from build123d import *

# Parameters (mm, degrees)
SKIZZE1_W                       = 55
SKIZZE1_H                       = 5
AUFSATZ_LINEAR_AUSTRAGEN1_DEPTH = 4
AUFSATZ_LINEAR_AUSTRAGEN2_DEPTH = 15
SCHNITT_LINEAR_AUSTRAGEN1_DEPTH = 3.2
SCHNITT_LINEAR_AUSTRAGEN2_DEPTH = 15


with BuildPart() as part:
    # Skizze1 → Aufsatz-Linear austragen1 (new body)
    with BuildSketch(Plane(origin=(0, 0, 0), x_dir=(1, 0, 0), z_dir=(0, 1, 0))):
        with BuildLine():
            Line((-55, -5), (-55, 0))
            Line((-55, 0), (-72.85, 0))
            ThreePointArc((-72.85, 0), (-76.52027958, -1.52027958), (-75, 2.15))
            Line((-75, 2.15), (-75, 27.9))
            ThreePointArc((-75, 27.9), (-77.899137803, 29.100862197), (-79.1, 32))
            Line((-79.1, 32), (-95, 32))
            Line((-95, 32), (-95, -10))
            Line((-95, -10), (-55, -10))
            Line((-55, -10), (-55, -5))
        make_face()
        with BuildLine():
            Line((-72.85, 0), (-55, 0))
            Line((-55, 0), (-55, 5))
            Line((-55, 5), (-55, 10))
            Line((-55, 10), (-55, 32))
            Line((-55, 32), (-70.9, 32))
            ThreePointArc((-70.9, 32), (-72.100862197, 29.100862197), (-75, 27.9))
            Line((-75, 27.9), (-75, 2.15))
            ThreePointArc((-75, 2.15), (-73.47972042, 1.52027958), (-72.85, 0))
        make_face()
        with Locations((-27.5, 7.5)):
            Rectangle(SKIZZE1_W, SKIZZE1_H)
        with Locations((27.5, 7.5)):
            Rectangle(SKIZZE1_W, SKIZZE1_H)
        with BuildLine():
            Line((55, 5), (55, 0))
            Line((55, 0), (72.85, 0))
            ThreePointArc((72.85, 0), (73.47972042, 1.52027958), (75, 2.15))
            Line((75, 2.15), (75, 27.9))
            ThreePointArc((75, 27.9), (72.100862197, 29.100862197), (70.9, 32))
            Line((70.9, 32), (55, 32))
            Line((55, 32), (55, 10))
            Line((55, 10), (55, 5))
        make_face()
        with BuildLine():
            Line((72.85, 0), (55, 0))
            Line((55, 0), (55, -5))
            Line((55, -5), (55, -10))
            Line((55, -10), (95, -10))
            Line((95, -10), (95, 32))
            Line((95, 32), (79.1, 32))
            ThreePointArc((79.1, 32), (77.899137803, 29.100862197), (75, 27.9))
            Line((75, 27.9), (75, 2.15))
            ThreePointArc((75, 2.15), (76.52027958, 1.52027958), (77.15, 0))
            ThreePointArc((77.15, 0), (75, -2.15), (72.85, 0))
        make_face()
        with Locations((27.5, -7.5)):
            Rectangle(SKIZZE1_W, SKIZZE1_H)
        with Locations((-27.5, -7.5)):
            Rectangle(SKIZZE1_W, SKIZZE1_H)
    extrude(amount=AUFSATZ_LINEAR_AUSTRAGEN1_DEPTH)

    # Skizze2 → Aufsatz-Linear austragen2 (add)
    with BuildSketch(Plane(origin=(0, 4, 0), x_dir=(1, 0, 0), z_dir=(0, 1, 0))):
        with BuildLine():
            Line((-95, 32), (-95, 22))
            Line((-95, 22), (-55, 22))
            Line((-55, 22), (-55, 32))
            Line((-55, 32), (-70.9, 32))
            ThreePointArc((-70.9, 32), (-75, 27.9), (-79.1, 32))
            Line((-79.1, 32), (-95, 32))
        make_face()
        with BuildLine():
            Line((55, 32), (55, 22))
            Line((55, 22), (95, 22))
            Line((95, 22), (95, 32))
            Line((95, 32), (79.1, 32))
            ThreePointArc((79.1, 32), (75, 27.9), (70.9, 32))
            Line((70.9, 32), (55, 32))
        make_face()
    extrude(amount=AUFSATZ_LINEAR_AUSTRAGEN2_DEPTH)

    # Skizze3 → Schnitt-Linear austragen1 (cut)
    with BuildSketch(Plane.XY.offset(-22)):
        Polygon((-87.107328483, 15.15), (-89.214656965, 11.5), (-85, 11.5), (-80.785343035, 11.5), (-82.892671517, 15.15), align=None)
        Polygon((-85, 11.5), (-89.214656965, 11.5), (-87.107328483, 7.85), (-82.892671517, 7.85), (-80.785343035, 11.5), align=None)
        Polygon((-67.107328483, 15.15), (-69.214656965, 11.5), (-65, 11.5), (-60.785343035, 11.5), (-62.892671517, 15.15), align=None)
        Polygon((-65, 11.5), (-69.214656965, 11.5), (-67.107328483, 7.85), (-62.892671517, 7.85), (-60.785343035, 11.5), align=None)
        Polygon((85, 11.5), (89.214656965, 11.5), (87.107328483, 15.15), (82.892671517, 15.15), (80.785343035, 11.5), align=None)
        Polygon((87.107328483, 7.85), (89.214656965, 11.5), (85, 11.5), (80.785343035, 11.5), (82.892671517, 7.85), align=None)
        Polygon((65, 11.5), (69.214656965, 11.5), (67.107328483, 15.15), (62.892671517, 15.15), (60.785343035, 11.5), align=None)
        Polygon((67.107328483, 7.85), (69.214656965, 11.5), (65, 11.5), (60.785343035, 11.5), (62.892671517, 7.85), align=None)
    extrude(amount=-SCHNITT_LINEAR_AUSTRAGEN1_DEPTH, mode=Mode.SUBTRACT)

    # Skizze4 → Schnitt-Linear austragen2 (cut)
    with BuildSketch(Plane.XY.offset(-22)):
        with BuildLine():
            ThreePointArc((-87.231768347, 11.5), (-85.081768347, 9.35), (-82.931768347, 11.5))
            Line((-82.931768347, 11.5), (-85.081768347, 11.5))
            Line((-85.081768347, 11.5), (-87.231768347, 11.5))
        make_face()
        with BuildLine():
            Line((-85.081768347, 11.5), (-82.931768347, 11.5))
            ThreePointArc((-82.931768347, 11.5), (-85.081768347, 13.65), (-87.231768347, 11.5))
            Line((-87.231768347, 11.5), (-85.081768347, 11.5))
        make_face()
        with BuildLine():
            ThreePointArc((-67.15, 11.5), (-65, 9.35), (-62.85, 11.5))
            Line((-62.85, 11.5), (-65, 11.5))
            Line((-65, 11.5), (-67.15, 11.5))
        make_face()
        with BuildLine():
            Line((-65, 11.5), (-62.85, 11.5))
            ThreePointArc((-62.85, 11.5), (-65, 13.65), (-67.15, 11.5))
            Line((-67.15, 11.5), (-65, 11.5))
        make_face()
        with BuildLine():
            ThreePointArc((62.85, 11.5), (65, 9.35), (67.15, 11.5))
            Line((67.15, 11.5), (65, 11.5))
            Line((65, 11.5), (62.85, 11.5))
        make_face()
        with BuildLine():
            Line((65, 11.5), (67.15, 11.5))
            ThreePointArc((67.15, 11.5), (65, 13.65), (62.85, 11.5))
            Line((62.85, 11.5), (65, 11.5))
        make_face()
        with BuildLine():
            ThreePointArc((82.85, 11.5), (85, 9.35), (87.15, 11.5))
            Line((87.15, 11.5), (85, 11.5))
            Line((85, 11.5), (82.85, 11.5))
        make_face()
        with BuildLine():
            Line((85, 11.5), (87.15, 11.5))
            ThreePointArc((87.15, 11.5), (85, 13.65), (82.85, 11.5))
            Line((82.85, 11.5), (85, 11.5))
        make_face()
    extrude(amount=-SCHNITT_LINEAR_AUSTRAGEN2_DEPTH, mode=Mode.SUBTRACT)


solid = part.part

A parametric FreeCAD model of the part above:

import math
import FreeCAD as App
import Part
import Sketcher
Q = App.Units.Quantity

doc = App.newDocument("Part")
body = doc.addObject("PartDesign::Body", "Body")

# Sketch on XZ plane
sketch1 = body.newObject("Sketcher::SketchObject", "Sketch")
sketch1.AttachmentSupport = (doc.getObject("XZ_Plane"), [""])
sketch1.MapMode = "FlatFace"
sketch1.addGeometry([
    Part.ArcOfCircle(Part.Circle(App.Vector(-75, -32, 0), App.Vector(0, 0, 1), 4.1), math.radians(90), math.radians(180)),  # 0
    Part.LineSegment(App.Vector(-79.1, -32, 0), App.Vector(-95, -32, 0)),  # 1
    Part.LineSegment(App.Vector(-95, -32, 0), App.Vector(-95, 10, 0)),  # 2
    Part.LineSegment(App.Vector(-95, 10, 0), App.Vector(95, 10, 0)),  # 3
    Part.LineSegment(App.Vector(95, 10, 0), App.Vector(95, -32, 0)),  # 4
    Part.LineSegment(App.Vector(95, -32, 0), App.Vector(79.1, -32, 0)),  # 5
    Part.ArcOfCircle(Part.Circle(App.Vector(75, -32, 0), App.Vector(0, 0, 1), 4.1), math.radians(0), math.radians(90)),  # 6
    Part.ArcOfCircle(Part.Circle(App.Vector(75, -32, 0), App.Vector(0, 0, 1), 4.1), math.radians(90), math.radians(180)),  # 7
    Part.LineSegment(App.Vector(70.9, -32, 0), App.Vector(55, -32, 0)),  # 8
    Part.LineSegment(App.Vector(55, -32, 0), App.Vector(55, -10, 0)),  # 9
    Part.LineSegment(App.Vector(55, -10, 0), App.Vector(-55, -10, 0)),  # 10
    Part.LineSegment(App.Vector(-55, -10, 0), App.Vector(-55, -32, 0)),  # 11
    Part.LineSegment(App.Vector(-55, -32, 0), App.Vector(-70.9, -32, 0)),  # 12
    Part.ArcOfCircle(Part.Circle(App.Vector(-75, -32, 0), App.Vector(0, 0, 1), 4.1), math.radians(0), math.radians(90)),  # 13
    Part.ArcOfCircle(Part.Circle(App.Vector(-75, 0, 0), App.Vector(0, 0, 1), 2.1), math.radians(0), math.radians(270)),  # 14
    Part.ArcOfCircle(Part.Circle(App.Vector(-75, 0, 0), App.Vector(0, 0, 1), 2.1), math.radians(-90), math.radians(0)),  # 15
    Part.LineSegment(App.Vector(-55, 5, 0), App.Vector(-55, -5, 0)),  # 16
    Part.LineSegment(App.Vector(-55, -5, 0), App.Vector(55, -5, 0)),  # 17
    Part.LineSegment(App.Vector(55, -5, 0), App.Vector(55, 5, 0)),  # 18
    Part.LineSegment(App.Vector(55, 5, 0), App.Vector(-55, 5, 0)),  # 19
    Part.ArcOfCircle(Part.Circle(App.Vector(75, 0, 0), App.Vector(0, 0, 1), 2.1), math.radians(180), math.radians(270)),  # 20
    Part.ArcOfCircle(Part.Circle(App.Vector(75, 0, 0), App.Vector(0, 0, 1), 2.1), math.radians(-90), math.radians(0)),  # 21
    Part.ArcOfCircle(Part.Circle(App.Vector(75, 0, 0), App.Vector(0, 0, 1), 2.1), math.radians(0), math.radians(180)),  # 22
], False)
sketch1.addConstraint([
    Sketcher.Constraint("Coincident", 0, 2, 1, 1),
    Sketcher.Constraint("Coincident", 1, 2, 2, 1),
    Sketcher.Constraint("Coincident", 2, 2, 3, 1),
    Sketcher.Constraint("Coincident", 3, 2, 4, 1),
    Sketcher.Constraint("Coincident", 4, 2, 5, 1),
    Sketcher.Constraint("Coincident", 5, 2, 6, 1),
    Sketcher.Constraint("Tangent", 6, 2, 7, 1),
    Sketcher.Constraint("Coincident", 7, 2, 8, 1),
    Sketcher.Constraint("Coincident", 8, 2, 9, 1),
    Sketcher.Constraint("Coincident", 9, 2, 10, 1),
    Sketcher.Constraint("Coincident", 10, 2, 11, 1),
    Sketcher.Constraint("Coincident", 11, 2, 12, 1),
    Sketcher.Constraint("Coincident", 12, 2, 13, 1),
    Sketcher.Constraint("Tangent", 13, 2, 0, 1),
    Sketcher.Constraint("Tangent", 14, 1, 15, 2),
    Sketcher.Constraint("Coincident", 15, 1, 14, 2),
    Sketcher.Constraint("Coincident", 16, 2, 17, 1),
    Sketcher.Constraint("Coincident", 17, 2, 18, 1),
    Sketcher.Constraint("Coincident", 18, 2, 19, 1),
    Sketcher.Constraint("Coincident", 19, 2, 16, 1),
    Sketcher.Constraint("Tangent", 20, 2, 21, 1),
    Sketcher.Constraint("Tangent", 21, 2, 22, 1),
    Sketcher.Constraint("Tangent", 22, 2, 20, 1),
    Sketcher.Constraint("Horizontal", 1),
    Sketcher.Constraint("Vertical", 2),
    Sketcher.Constraint("Horizontal", 3),
    Sketcher.Constraint("Vertical", 4),
    Sketcher.Constraint("Horizontal", 5),
    Sketcher.Constraint("Horizontal", 8),
    Sketcher.Constraint("Vertical", 9),
    Sketcher.Constraint("Horizontal", 10),
    Sketcher.Constraint("Vertical", 11),
    Sketcher.Constraint("Horizontal", 12),
    Sketcher.Constraint("Vertical", 16),
    Sketcher.Constraint("Horizontal", 17),
    Sketcher.Constraint("Vertical", 18),
    Sketcher.Constraint("Horizontal", 19),
    Sketcher.Constraint("Equal", 0, 6),
    Sketcher.Constraint("Equal", 6, 7),
    Sketcher.Constraint("Equal", 7, 13),
    Sketcher.Constraint("Equal", 15, 20),
    Sketcher.Constraint("Symmetric", 14, 3, 20, 3, -1, 1),
    Sketcher.Constraint("Symmetric", 16, 2, 18, 2, -1, 1),
    Sketcher.Constraint("Symmetric", 0, 3, 6, 3, -2),
    Sketcher.Constraint("Symmetric", 1, 2, 4, 2, -2),
    Sketcher.Constraint("Symmetric", 8, 2, 11, 2, -2),
    Sketcher.Constraint("Symmetric", 15, 1, 20, 2, -2),
    Sketcher.Constraint("PointOnObject", 14, 1, -1),
    Sketcher.Constraint("PointOnObject", 21, 2, -1),
    Sketcher.Constraint("PointOnObject", 22, 2, -1),
    Sketcher.Constraint("Horizontal", 13, 3, 0, 2),
    Sketcher.Constraint("Horizontal", 5, 2, 7, 2),
    Sketcher.Constraint("Vertical", 13, 3, 14, 3),
    Sketcher.Constraint("Vertical", 22, 3, 6, 2),
    Sketcher.Constraint("Vertical", 15, 3, 13, 2),
    Sketcher.Constraint("Vertical", 13, 2, 15, 1),
    Sketcher.Constraint("Vertical", 11, 2, 16, 2),
    Sketcher.Constraint("Equal", 5, 8),
    Sketcher.Constraint("Radius", 0, 4.1),
    Sketcher.Constraint("DistanceX", 3, 1, 3, 2, 190.0),
    Sketcher.Constraint("DistanceX", 10, 2, 10, 1, 110.0),
    Sketcher.Constraint("DistanceY", 2, 1, 2, 2, 42.0),
    Sketcher.Constraint("DistanceY", 9, 1, 9, 2, 22.0),
    Sketcher.Constraint("DistanceY", 16, 2, 16, 1, 10.0),
    Sketcher.Constraint("Radius", 14, 2.15),
    Sketcher.Constraint("DistanceY", 0, 3, -1, 1, 32.0),
])
pad1 = body.newObject("PartDesign::Pad", "Pad")
pad1.Profile = sketch1
pad1.Length = 4
pad1.Reversed = True

# Sketch on XZ plane
sketch2 = body.newObject("Sketcher::SketchObject", "Sketch001")
sketch2.AttachmentSupport = (doc.getObject("XZ_Plane"), [""])
sketch2.MapMode = "FlatFace"
sketch2.AttachmentOffset = App.Placement(App.Vector(0, 0, -4), App.Rotation())
sketch2.addGeometry([
    Part.LineSegment(App.Vector(-95, -32, 0), App.Vector(-95, -22, 0)),  # 0
    Part.LineSegment(App.Vector(-95, -22, 0), App.Vector(-55, -22, 0)),  # 1
    Part.LineSegment(App.Vector(-55, -22, 0), App.Vector(-55, -32, 0)),  # 2
    Part.LineSegment(App.Vector(-55, -32, 0), App.Vector(-70.9, -32, 0)),  # 3
    Part.ArcOfCircle(Part.Circle(App.Vector(-75, -32, 0), App.Vector(0, 0, 1), 4.1), math.radians(0), math.radians(180)),  # 4
    Part.LineSegment(App.Vector(-79.1, -32, 0), App.Vector(-95, -32, 0)),  # 5
    Part.LineSegment(App.Vector(55, -32, 0), App.Vector(55, -22, 0)),  # 6
    Part.LineSegment(App.Vector(55, -22, 0), App.Vector(95, -22, 0)),  # 7
    Part.LineSegment(App.Vector(95, -22, 0), App.Vector(95, -32, 0)),  # 8
    Part.LineSegment(App.Vector(95, -32, 0), App.Vector(79.1, -32, 0)),  # 9
    Part.ArcOfCircle(Part.Circle(App.Vector(75, -32, 0), App.Vector(0, 0, 1), 4.1), math.radians(0), math.radians(180)),  # 10
    Part.LineSegment(App.Vector(70.9, -32, 0), App.Vector(55, -32, 0)),  # 11
], False)
sketch2.addConstraint([
    Sketcher.Constraint("Coincident", 0, 2, 1, 1),
    Sketcher.Constraint("Coincident", 1, 2, 2, 1),
    Sketcher.Constraint("Coincident", 2, 2, 3, 1),
    Sketcher.Constraint("Coincident", 3, 2, 4, 1),
    Sketcher.Constraint("Coincident", 4, 2, 5, 1),
    Sketcher.Constraint("Coincident", 5, 2, 0, 1),
    Sketcher.Constraint("Coincident", 6, 2, 7, 1),
    Sketcher.Constraint("Coincident", 7, 2, 8, 1),
    Sketcher.Constraint("Coincident", 8, 2, 9, 1),
    Sketcher.Constraint("Coincident", 9, 2, 10, 1),
    Sketcher.Constraint("Coincident", 10, 2, 11, 1),
    Sketcher.Constraint("Coincident", 11, 2, 6, 1),
    Sketcher.Constraint("Vertical", 0),
    Sketcher.Constraint("Horizontal", 1),
    Sketcher.Constraint("Vertical", 2),
    Sketcher.Constraint("Horizontal", 3),
    Sketcher.Constraint("Horizontal", 5),
    Sketcher.Constraint("Vertical", 6),
    Sketcher.Constraint("Horizontal", 7),
    Sketcher.Constraint("Vertical", 8),
    Sketcher.Constraint("Horizontal", 9),
    Sketcher.Constraint("Horizontal", 11),
    Sketcher.Constraint("Equal", 4, 10),
    Sketcher.Constraint("Symmetric", 4, 3, 10, 3, -2),
    Sketcher.Constraint("Symmetric", 1, 2, 6, 2, -2),
    Sketcher.Constraint("Symmetric", 5, 2, 8, 2, -2),
    Sketcher.Constraint("Horizontal", 10, 3, 2, 2),
    Sketcher.Constraint("Horizontal", 3, 2, 4, 2),
    Sketcher.Constraint("Horizontal", 9, 2, 10, 2),
    Sketcher.Constraint("Equal", 3, 5),
    Sketcher.Constraint("Radius", 4, 4.1),
    Sketcher.Constraint("DistanceX", 1, 1, 1, 2, 40.0),
    Sketcher.Constraint("DistanceY", 0, 1, 0, 2, 10.0),
    Sketcher.Constraint("DistanceX", 4, 3, -1, 1, 75.0),
    Sketcher.Constraint("DistanceY", 4, 3, -1, 1, 32.0),
])
pad2 = body.newObject("PartDesign::Pad", "Pad001")
pad2.Profile = sketch2
pad2.Length = 15
pad2.Reversed = True

# Sketch on XY plane
sketch3 = body.newObject("Sketcher::SketchObject", "Sketch002")
sketch3.AttachmentSupport = (doc.getObject("XY_Plane"), [""])
sketch3.MapMode = "FlatFace"
sketch3.AttachmentOffset = App.Placement(App.Vector(0, 0, -22), App.Rotation())
sketch3.addGeometry([
    Part.LineSegment(App.Vector(-87.1, 15.2, 0), App.Vector(-89.2, 11.5, 0)),  # 0
    Part.LineSegment(App.Vector(-89.2, 11.5, 0), App.Vector(-87.1, 7.8, 0)),  # 1
    Part.LineSegment(App.Vector(-87.1, 7.8, 0), App.Vector(-82.9, 7.8, 0)),  # 2
    Part.LineSegment(App.Vector(-82.9, 7.8, 0), App.Vector(-80.8, 11.5, 0)),  # 3
    Part.LineSegment(App.Vector(-80.8, 11.5, 0), App.Vector(-82.9, 15.2, 0)),  # 4
    Part.LineSegment(App.Vector(-82.9, 15.2, 0), App.Vector(-87.1, 15.2, 0)),  # 5
    Part.LineSegment(App.Vector(-67.1, 15.2, 0), App.Vector(-69.2, 11.5, 0)),  # 6
    Part.LineSegment(App.Vector(-69.2, 11.5, 0), App.Vector(-67.1, 7.8, 0)),  # 7
    Part.LineSegment(App.Vector(-67.1, 7.8, 0), App.Vector(-62.9, 7.8, 0)),  # 8
    Part.LineSegment(App.Vector(-62.9, 7.8, 0), App.Vector(-60.8, 11.5, 0)),  # 9
    Part.LineSegment(App.Vector(-60.8, 11.5, 0), App.Vector(-62.9, 15.2, 0)),  # 10
    Part.LineSegment(App.Vector(-62.9, 15.2, 0), App.Vector(-67.1, 15.2, 0)),  # 11
    Part.LineSegment(App.Vector(89.2, 11.5, 0), App.Vector(87.1, 15.2, 0)),  # 12
    Part.LineSegment(App.Vector(87.1, 15.2, 0), App.Vector(82.9, 15.2, 0)),  # 13
    Part.LineSegment(App.Vector(82.9, 15.2, 0), App.Vector(80.8, 11.5, 0)),  # 14
    Part.LineSegment(App.Vector(80.8, 11.5, 0), App.Vector(82.9, 7.8, 0)),  # 15
    Part.LineSegment(App.Vector(82.9, 7.8, 0), App.Vector(87.1, 7.8, 0)),  # 16
    Part.LineSegment(App.Vector(87.1, 7.8, 0), App.Vector(89.2, 11.5, 0)),  # 17
    Part.LineSegment(App.Vector(69.2, 11.5, 0), App.Vector(67.1, 15.2, 0)),  # 18
    Part.LineSegment(App.Vector(67.1, 15.2, 0), App.Vector(62.9, 15.2, 0)),  # 19
    Part.LineSegment(App.Vector(62.9, 15.2, 0), App.Vector(60.8, 11.5, 0)),  # 20
    Part.LineSegment(App.Vector(60.8, 11.5, 0), App.Vector(62.9, 7.8, 0)),  # 21
    Part.LineSegment(App.Vector(62.9, 7.8, 0), App.Vector(67.1, 7.8, 0)),  # 22
    Part.LineSegment(App.Vector(67.1, 7.8, 0), App.Vector(69.2, 11.5, 0)),  # 23
], False)
sketch3.addConstraint([
    Sketcher.Constraint("Coincident", 0, 2, 1, 1),
    Sketcher.Constraint("Coincident", 1, 2, 2, 1),
    Sketcher.Constraint("Coincident", 2, 2, 3, 1),
    Sketcher.Constraint("Coincident", 3, 2, 4, 1),
    Sketcher.Constraint("Coincident", 4, 2, 5, 1),
    Sketcher.Constraint("Coincident", 5, 2, 0, 1),
    Sketcher.Constraint("Coincident", 6, 2, 7, 1),
    Sketcher.Constraint("Coincident", 7, 2, 8, 1),
    Sketcher.Constraint("Coincident", 8, 2, 9, 1),
    Sketcher.Constraint("Coincident", 9, 2, 10, 1),
    Sketcher.Constraint("Coincident", 10, 2, 11, 1),
    Sketcher.Constraint("Coincident", 11, 2, 6, 1),
    Sketcher.Constraint("Coincident", 12, 2, 13, 1),
    Sketcher.Constraint("Coincident", 13, 2, 14, 1),
    Sketcher.Constraint("Coincident", 14, 2, 15, 1),
    Sketcher.Constraint("Coincident", 15, 2, 16, 1),
    Sketcher.Constraint("Coincident", 16, 2, 17, 1),
    Sketcher.Constraint("Coincident", 17, 2, 12, 1),
    Sketcher.Constraint("Coincident", 18, 2, 19, 1),
    Sketcher.Constraint("Coincident", 19, 2, 20, 1),
    Sketcher.Constraint("Coincident", 20, 2, 21, 1),
    Sketcher.Constraint("Coincident", 21, 2, 22, 1),
    Sketcher.Constraint("Coincident", 22, 2, 23, 1),
    Sketcher.Constraint("Coincident", 23, 2, 18, 1),
    Sketcher.Constraint("Horizontal", 2),
    Sketcher.Constraint("Horizontal", 5),
    Sketcher.Constraint("Horizontal", 8),
    Sketcher.Constraint("Horizontal", 11),
    Sketcher.Constraint("Horizontal", 13),
    Sketcher.Constraint("Horizontal", 16),
    Sketcher.Constraint("Horizontal", 19),
    Sketcher.Constraint("Horizontal", 22),
    Sketcher.Constraint("Symmetric", 5, 2, 12, 2, -2),
    Sketcher.Constraint("Symmetric", 3, 2, 14, 2, -2),
    Sketcher.Constraint("Symmetric", 2, 2, 15, 2, -2),
    Sketcher.Constraint("Symmetric", 0, 2, 17, 2, -2),
    Sketcher.Constraint("Symmetric", 11, 2, 18, 2, -2),
    Sketcher.Constraint("Symmetric", 9, 2, 20, 2, -2),
    Sketcher.Constraint("Symmetric", 8, 2, 21, 2, -2),
    Sketcher.Constraint("Symmetric", 6, 2, 23, 2, -2),
    Sketcher.Constraint("Parallel", 0, 3),
    Sketcher.Constraint("Parallel", 1, 4),
    Sketcher.Constraint("Parallel", 3, 6),
    Sketcher.Constraint("Parallel", 4, 7),
    Sketcher.Constraint("Parallel", 6, 9),
    Sketcher.Constraint("Parallel", 7, 10),
    Sketcher.Constraint("Parallel", 10, 12),
    Sketcher.Constraint("Parallel", 9, 14),
    Sketcher.Constraint("Parallel", 14, 17),
    Sketcher.Constraint("Parallel", 17, 20),
    Sketcher.Constraint("Parallel", 20, 23),
    Sketcher.Constraint("Horizontal", 0, 2, 3, 2),
    Sketcher.Constraint("Horizontal", 3, 2, 6, 2),
    Sketcher.Constraint("Horizontal", 2, 2, 7, 2),
    Sketcher.Constraint("Horizontal", 6, 2, 9, 2),
    Sketcher.Constraint("Horizontal", 5, 2, 10, 2),
    Sketcher.Constraint("Vertical", 2, 2, 4, 2),
    Sketcher.Constraint("Equal", 5, 8),
    Sketcher.Constraint("Angle", 0, Q("-120 deg")),
    Sketcher.Constraint("DistanceX", 1, 2, 7, 2, 20.0),
    Sketcher.Constraint("DistanceX", 10, 2, 12, 2, 150.0),
    Sketcher.Constraint("DistanceY", -1, 1, 0, 2, 11.5),
    Sketcher.Constraint("DistanceY", 2, 2, 4, 2, 7.3),
    Sketcher.Constraint("DistanceX", 2, 1, 2, 2, 4.214657),
])
pocket1 = body.newObject("PartDesign::Pocket", "Pocket")
pocket1.Profile = sketch3
pocket1.Length = 3.2

# Sketch on XY plane
sketch4 = body.newObject("Sketcher::SketchObject", "Sketch003")
sketch4.AttachmentSupport = (doc.getObject("XY_Plane"), [""])
sketch4.MapMode = "FlatFace"
sketch4.AttachmentOffset = App.Placement(App.Vector(0, 0, -22), App.Rotation())
sketch4.addGeometry([
    Part.Circle(App.Vector(-85.1, 11.5, 0), App.Vector(0, 0, 1), 2.1),
    Part.Circle(App.Vector(-65, 11.5, 0), App.Vector(0, 0, 1), 2.1),
    Part.Circle(App.Vector(65, 11.5, 0), App.Vector(0, 0, 1), 2.1),
    Part.Circle(App.Vector(85, 11.5, 0), App.Vector(0, 0, 1), 2.1),
], False)
sketch4.addConstraint([
    Sketcher.Constraint("Equal", 0, 1),
    Sketcher.Constraint("Equal", 1, 2),
    Sketcher.Constraint("Equal", 2, 3),
    Sketcher.Constraint("Symmetric", 1, 3, 2, 3, -2),
    Sketcher.Constraint("Horizontal", 0, 3, 1, 3),
    Sketcher.Constraint("Horizontal", 2, 3, 3, 3),
    Sketcher.Constraint("Diameter", 0, 4.3),
    Sketcher.Constraint("DistanceX", 1, 3, -1, 1, 65.0),
    Sketcher.Constraint("DistanceX", -1, 1, 3, 3, 85.0),
    Sketcher.Constraint("DistanceY", -1, 1, 0, 3, 11.5),
    Sketcher.Constraint("DistanceX", 0, 3, -1, 1, 85.081768),
])
pocket2 = body.newObject("PartDesign::Pocket", "Pocket001")
pocket2.Profile = sketch4
pocket2.Length = 15

doc.recompute()
